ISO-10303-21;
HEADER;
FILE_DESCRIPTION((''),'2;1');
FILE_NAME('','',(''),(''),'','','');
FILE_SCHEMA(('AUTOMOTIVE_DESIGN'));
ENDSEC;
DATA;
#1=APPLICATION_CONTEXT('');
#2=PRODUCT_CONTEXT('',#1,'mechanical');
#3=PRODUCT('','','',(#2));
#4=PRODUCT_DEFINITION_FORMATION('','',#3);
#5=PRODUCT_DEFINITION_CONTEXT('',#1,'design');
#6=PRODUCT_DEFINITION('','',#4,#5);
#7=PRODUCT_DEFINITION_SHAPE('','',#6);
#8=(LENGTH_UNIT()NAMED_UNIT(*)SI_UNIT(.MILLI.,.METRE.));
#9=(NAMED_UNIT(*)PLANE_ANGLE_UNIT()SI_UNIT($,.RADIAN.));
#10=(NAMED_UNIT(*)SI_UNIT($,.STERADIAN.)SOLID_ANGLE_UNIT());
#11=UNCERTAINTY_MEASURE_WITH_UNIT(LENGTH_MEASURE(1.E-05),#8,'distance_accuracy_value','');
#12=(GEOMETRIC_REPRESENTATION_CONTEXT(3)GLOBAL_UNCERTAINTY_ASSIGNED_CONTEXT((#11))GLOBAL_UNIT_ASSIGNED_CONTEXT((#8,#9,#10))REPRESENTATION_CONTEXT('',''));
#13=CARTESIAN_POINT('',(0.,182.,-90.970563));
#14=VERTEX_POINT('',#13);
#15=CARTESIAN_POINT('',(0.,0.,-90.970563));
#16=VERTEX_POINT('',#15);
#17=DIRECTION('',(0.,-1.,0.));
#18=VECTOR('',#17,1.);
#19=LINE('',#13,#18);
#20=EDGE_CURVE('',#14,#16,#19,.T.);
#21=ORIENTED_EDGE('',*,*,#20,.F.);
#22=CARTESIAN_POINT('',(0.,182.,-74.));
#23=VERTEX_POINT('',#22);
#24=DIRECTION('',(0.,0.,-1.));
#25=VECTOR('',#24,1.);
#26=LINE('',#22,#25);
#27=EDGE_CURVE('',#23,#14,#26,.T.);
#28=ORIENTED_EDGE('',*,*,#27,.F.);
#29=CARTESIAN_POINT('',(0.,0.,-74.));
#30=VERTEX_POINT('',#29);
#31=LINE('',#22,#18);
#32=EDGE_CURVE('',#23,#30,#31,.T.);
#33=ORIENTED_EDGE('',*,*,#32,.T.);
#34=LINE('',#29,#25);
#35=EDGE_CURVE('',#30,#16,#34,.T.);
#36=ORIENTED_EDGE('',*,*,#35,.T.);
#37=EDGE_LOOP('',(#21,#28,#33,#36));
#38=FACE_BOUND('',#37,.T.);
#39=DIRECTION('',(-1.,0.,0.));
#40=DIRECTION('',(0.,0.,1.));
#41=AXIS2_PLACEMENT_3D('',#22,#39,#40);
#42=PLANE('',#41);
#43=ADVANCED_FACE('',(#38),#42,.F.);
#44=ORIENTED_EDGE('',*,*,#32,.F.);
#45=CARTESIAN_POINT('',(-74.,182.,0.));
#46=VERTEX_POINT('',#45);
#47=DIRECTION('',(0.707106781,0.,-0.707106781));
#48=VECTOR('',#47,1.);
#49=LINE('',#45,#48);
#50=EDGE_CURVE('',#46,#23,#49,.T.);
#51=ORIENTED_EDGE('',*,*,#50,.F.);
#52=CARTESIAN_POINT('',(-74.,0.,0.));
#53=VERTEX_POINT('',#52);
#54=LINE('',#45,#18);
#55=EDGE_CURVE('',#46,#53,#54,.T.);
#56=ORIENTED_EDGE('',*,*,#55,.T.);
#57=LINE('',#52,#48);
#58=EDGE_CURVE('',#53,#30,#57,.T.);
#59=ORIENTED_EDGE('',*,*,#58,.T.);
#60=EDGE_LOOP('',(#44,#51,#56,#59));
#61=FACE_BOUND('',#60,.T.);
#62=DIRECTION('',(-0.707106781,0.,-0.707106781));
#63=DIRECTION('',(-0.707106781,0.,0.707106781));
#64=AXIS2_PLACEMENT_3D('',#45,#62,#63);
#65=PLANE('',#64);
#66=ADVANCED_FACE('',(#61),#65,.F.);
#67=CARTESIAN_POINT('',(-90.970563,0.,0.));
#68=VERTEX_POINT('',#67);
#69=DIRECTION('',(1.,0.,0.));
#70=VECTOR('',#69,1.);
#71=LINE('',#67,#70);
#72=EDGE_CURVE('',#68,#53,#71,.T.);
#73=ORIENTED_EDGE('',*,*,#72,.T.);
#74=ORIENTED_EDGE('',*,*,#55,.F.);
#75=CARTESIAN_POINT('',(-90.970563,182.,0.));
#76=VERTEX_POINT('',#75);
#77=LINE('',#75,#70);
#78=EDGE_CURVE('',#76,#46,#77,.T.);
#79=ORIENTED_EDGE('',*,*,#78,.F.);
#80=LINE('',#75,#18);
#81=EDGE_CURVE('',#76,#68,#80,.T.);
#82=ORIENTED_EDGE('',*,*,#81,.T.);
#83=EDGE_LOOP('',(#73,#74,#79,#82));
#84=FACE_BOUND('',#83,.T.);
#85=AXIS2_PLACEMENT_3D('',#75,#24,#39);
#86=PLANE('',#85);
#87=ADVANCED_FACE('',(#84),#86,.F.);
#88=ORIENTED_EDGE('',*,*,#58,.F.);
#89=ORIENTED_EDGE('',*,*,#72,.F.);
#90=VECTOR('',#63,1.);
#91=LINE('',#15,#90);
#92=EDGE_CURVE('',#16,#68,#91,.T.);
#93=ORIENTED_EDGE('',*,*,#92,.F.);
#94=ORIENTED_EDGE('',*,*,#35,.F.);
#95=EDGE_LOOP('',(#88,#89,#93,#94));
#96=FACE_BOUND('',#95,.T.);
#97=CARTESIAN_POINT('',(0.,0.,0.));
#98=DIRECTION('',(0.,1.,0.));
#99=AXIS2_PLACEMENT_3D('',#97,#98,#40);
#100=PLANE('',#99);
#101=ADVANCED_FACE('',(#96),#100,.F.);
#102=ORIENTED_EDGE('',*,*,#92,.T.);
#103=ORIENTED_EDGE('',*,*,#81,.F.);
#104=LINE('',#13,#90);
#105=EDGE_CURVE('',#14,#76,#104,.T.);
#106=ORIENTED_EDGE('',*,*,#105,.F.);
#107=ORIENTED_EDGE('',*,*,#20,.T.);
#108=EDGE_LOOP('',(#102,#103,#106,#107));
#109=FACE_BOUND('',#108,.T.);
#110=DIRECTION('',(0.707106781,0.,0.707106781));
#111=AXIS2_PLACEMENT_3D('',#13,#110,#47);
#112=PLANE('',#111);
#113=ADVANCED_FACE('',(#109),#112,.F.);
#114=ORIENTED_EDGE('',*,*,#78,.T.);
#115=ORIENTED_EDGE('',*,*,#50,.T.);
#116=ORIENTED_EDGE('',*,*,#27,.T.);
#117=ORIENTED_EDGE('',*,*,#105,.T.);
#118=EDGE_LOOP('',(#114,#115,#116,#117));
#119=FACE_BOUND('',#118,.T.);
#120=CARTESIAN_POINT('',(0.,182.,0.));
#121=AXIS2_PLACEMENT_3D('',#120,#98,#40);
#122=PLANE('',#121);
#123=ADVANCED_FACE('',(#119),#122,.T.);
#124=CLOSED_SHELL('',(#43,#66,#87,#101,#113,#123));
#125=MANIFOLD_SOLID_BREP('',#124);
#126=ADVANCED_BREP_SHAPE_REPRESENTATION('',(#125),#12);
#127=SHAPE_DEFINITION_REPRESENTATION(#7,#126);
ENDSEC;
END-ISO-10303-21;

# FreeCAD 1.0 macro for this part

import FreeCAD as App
import Part
import Sketcher

V = App.Vector


def add_polygon(sketch, points):
    """Adds a closed chain of lines whose ends are joined by coincident constraints."""
    first, n = sketch.GeometryCount, len(points)
    for a, b in zip(points, points[1:] + points[:1]):
        sketch.addGeometry(Part.LineSegment(App.Vector(*a, 0), App.Vector(*b, 0)), False)
    for i in range(n):
        sketch.addConstraint(Sketcher.Constraint("Coincident", first + i, 2, first + (i + 1) % n, 1))

doc = App.newDocument("Part")
body = doc.addObject("PartDesign::Body", "Body")

# Sketch on XZ plane
sketch1 = body.newObject("Sketcher::SketchObject", "Sketch")
sketch1.AttachmentSupport = (doc.getObject("XZ_Plane"), [""])
sketch1.MapMode = "FlatFace"
add_polygon(sketch1, [(-74, 0), (0, -74), (0, -91), (-91, 0)])  # lines 0-3
sketch1.addConstraint([
    Sketcher.Constraint("Vertical", 1),
    Sketcher.Constraint("Horizontal", 3),
    Sketcher.Constraint("PointOnObject", 0, 2, -2),
    Sketcher.Constraint("PointOnObject", 2, 2, -1),
    Sketcher.Constraint("Parallel", 0, 2),
    Sketcher.Constraint("Equal", 3, 1),
    Sketcher.Constraint("DistanceY", 0, 2, -1, 1, 74.0),
    Sketcher.Constraint("DistanceX", 3, 1, 3, 2, 16.970563),
])
pad1 = body.newObject("PartDesign::Pad", "Pad")
pad1.Profile = sketch1
pad1.Length = 182
pad1.Reversed = True

doc.recompute()
